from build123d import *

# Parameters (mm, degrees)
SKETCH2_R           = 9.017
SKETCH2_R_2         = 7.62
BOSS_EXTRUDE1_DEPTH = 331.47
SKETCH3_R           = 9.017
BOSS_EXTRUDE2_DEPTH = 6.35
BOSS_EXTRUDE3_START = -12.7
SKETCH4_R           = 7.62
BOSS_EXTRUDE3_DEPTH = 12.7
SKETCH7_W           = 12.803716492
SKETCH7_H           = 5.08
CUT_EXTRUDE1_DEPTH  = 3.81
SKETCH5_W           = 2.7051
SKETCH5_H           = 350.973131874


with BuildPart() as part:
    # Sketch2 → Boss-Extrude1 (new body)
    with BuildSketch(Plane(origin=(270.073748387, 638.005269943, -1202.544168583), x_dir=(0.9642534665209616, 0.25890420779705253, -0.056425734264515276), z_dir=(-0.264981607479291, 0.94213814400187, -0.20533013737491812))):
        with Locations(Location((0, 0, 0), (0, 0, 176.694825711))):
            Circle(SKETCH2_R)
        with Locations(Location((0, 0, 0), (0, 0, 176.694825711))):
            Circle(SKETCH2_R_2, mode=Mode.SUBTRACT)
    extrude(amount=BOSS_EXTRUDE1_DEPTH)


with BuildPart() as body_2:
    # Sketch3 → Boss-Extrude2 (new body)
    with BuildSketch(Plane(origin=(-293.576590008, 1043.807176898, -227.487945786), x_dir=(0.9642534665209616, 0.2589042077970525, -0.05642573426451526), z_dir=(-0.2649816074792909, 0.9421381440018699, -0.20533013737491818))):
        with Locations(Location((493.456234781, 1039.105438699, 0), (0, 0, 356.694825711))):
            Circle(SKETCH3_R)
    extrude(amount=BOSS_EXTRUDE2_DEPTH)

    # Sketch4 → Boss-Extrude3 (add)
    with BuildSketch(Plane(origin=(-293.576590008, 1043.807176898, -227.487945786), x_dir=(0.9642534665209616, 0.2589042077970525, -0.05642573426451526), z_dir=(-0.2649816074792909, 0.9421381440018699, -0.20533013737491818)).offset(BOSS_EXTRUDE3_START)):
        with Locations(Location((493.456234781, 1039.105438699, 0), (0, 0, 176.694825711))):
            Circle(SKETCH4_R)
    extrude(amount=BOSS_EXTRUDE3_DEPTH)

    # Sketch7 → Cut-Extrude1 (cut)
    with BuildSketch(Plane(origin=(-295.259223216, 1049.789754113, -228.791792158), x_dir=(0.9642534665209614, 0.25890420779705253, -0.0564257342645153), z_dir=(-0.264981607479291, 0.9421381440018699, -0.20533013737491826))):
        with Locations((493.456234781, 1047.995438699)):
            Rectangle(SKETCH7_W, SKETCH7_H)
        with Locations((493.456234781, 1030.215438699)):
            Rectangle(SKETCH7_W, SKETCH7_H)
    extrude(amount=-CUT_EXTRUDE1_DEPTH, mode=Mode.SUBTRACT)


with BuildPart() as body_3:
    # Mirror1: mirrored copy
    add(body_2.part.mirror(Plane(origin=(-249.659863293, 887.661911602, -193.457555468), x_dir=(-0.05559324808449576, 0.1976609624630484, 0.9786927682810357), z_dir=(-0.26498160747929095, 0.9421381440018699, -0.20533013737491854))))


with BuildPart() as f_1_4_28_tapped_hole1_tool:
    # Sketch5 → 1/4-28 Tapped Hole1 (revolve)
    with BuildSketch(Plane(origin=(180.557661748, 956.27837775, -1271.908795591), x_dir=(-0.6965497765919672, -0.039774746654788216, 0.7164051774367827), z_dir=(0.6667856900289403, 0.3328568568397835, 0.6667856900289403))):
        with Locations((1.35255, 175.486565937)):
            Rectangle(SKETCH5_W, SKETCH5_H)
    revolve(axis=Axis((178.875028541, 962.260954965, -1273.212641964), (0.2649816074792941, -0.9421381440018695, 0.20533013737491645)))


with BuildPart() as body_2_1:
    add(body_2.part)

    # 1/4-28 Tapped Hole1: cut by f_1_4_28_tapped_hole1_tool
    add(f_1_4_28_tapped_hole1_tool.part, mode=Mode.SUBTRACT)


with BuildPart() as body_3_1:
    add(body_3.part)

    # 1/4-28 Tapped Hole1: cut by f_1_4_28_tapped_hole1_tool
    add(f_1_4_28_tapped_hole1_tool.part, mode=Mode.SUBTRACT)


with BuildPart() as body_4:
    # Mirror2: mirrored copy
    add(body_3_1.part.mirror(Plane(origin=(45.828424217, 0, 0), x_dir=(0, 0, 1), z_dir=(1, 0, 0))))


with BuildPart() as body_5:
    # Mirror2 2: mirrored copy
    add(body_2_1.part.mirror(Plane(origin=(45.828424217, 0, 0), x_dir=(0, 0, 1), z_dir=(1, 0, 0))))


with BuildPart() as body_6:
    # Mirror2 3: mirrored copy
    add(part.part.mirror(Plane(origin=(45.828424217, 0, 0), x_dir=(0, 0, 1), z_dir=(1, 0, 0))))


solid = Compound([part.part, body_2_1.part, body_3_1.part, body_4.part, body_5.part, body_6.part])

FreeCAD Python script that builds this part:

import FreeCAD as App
import Part
import Sketcher
from FreeCAD import Vector
Q = App.Units.Quantity


def add_polygon(sketch, points):
    """Adds a closed chain of lines whose ends are joined by coincident constraints."""
    first, n = sketch.GeometryCount, len(points)
    for a, b in zip(points, points[1:] + points[:1]):
        sketch.addGeometry(Part.LineSegment(App.Vector(*a, 0), App.Vector(*b, 0)), False)
    for i in range(n):
        sketch.addConstraint(Sketcher.Constraint("Coincident", first + i, 2, first + (i + 1) % n, 1))

doc = App.newDocument("Part")
body = doc.addObject("PartDesign::Body", "Body")

# Sketch on an angled plane
sketch1 = doc.addObject("Sketcher::SketchObject", "Sketch")
body.addObject(sketch1)
sketch1.Placement = App.Placement(Vector(270.073748, 638.00527, -1202.544169), App.Rotation(Vector(0.964253467, 0.258904208, -0.056425734), Vector(0, -0.212942078, -0.977064825), Vector(-0.264981607, 0.942138144, -0.205330137), "ZXY"))
sketch1.addGeometry([
    Part.Circle(Vector(0, 0, 0), Vector(0, 0, 1), 9),
    Part.Circle(Vector(0, 0, 0), Vector(0, 0, 1), 8),
], False)
sketch1.addConstraint([
    Sketcher.Constraint("Coincident", 0, 3, -1, 1),
    Sketcher.Constraint("Coincident", 1, 3, -1, 1),
    Sketcher.Constraint("Diameter", 1, Q("0.6 in")),
    Sketcher.Constraint("Diameter", 0, Q("0.71 in")),
])
pad1 = doc.addObject("PartDesign::Pad", "Pad")
body.addObject(pad1)
pad1.Profile = sketch1
pad1.Length = Q("13.05 in")
body2 = doc.addObject("PartDesign::Body", "Body001")

# Sketch on an angled plane
sketch2 = doc.addObject("Sketcher::SketchObject", "Sketch001")
body2.addObject(sketch2)
sketch2.Placement = App.Placement(Vector(-293.57659, 1043.807177, -227.487946), App.Rotation(Vector(0.964253467, 0.258904208, -0.056425734), Vector(0, -0.212942078, -0.977064825), Vector(-0.264981607, 0.942138144, -0.205330137), "ZXY"))
sketch2.addGeometry(Part.Circle(Vector(493, 1039, 0), Vector(0, 0, 1), 9), False)
sketch2.addConstraint([
    Sketcher.Constraint("Diameter", 0, Q("0.71 in")),
    Sketcher.Constraint("DistanceY", -1, 1, 0, 3, 1039.105439),
    Sketcher.Constraint("DistanceX", -1, 1, 0, 3, 493.456235),
])
pad2 = doc.addObject("PartDesign::Pad", "Pad001")
body2.addObject(pad2)
pad2.Profile = sketch2
pad2.Length = Q("0.25 in")

# Sketch on an angled plane
sketch3 = doc.addObject("Sketcher::SketchObject", "Sketch002")
body2.addObject(sketch3)
sketch3.Placement = App.Placement(Vector(-290.211324, 1031.842022, -224.880253), App.Rotation(Vector(0.964253467, 0.258904208, -0.056425734), Vector(0, -0.212942078, -0.977064825), Vector(-0.264981607, 0.942138144, -0.205330137), "ZXY"))
sketch3.addGeometry(Part.Circle(Vector(493, 1039, 0), Vector(0, 0, 1), 8), False)
sketch3.addConstraint([
    Sketcher.Constraint("Diameter", 0, Q("0.6 in")),
    Sketcher.Constraint("DistanceY", -1, 1, 0, 3, 1039.105439),
    Sketcher.Constraint("DistanceX", -1, 1, 0, 3, 493.456235),
])
pad3 = doc.addObject("PartDesign::Pad", "Pad002")
body2.addObject(pad3)
pad3.Profile = sketch3
pad3.Length = Q("0.5 in")

# Sketch on an angled plane
sketch4 = doc.addObject("Sketcher::SketchObject", "Sketch003")
body2.addObject(sketch4)
sketch4.Placement = App.Placement(Vector(-295.259223, 1049.789754, -228.791792), App.Rotation(Vector(0.964253467, 0.258904208, -0.056425734), Vector(0, -0.212942078, -0.977064825), Vector(-0.264981607, 0.942138144, -0.205330137), "ZXY"))
add_polygon(sketch4, [(487, 1051), (487, 1045), (500, 1045), (500, 1051)])  # lines 0-3
add_polygon(sketch4, [(487, 1033), (487, 1028), (500, 1028), (500, 1033)])  # lines 4-7
sketch4.addConstraint([
    Sketcher.Constraint("Vertical", 0),
    Sketcher.Constraint("Horizontal", 1),
    Sketcher.Constraint("Vertical", 2),
    Sketcher.Constraint("Horizontal", 3),
    Sketcher.Constraint("Vertical", 4),
    Sketcher.Constraint("Horizontal", 5),
    Sketcher.Constraint("Vertical", 6),
    Sketcher.Constraint("Horizontal", 7),
    Sketcher.Constraint("Vertical", 3, 2, 4, 2),
    Sketcher.Constraint("Vertical", 2, 2, 5, 2),
    Sketcher.Constraint("Equal", 2, 4),
    Sketcher.Constraint("DistanceY", 0, 2, 0, 1, Q("0.2 in")),
    Sketcher.Constraint("DistanceY", 4, 2, 0, 2, Q("0.7 in")),
    Sketcher.Constraint("DistanceX", 1, 1, 1, 2, 12.803717),
    Sketcher.Constraint("DistanceY", -1, 1, 0, 2, 1045.455439),
    Sketcher.Constraint("DistanceX", -1, 1, 0, 2, 487.054377),
])
pocket1 = doc.addObject("PartDesign::Pocket", "Pocket")
body2.addObject(pocket1)
pocket1.Profile = sketch4
pocket1.Length = Q("0.15 in")
body3 = doc.addObject("PartDesign::Body", "Body002")
doc.recompute()

mirroring = doc.addObject("Part::Mirroring", "Mirroring")
mirroring.Source = body2
mirroring.Base = Vector(-249.659863, 887.661912, -193.457555)
mirroring.Normal = Vector(-0.264981607, 0.942138144, -0.205330137)
body3.BaseFeature = mirroring
doc.recompute()
body4 = doc.addObject("PartDesign::Body", "Body003")

# Sketch on an angled plane
sketch5 = doc.addObject("Sketcher::SketchObject", "Sketch004")
body4.addObject(sketch5)
sketch5.Placement = App.Placement(Vector(180.557662, 956.278378, -1271.908796), App.Rotation(Vector(-0.696549777, -0.039774747, 0.716405177), Vector(0.264981608, -0.942138144, 0.205330137), Vector(0.66678569, 0.332856857, 0.66678569), "ZXY"))
add_polygon(sketch5, [(0, 351), (0, 0), (2.7, 0), (2.7, 351)])  # lines 0-3
sketch5.addConstraint([
    Sketcher.Constraint("Vertical", 0),
    Sketcher.Constraint("Horizontal", 1),
    Sketcher.Constraint("Vertical", 2),
    Sketcher.Constraint("Horizontal", 3),
    Sketcher.Constraint("Coincident", 0, 2, -1, 1),
    Sketcher.Constraint("DistanceX", 1, 1, 1, 2, Q("0.1065 in")),
    Sketcher.Constraint("DistanceY", 0, 2, 0, 1, 350.973132),
])
revolution = doc.addObject("PartDesign::Revolution", "Revolution")
body4.addObject(revolution)
revolution.Profile = sketch5
revolution.ReferenceAxis = (sketch5, ["V_Axis"])
revolution.Angle = 360
doc.recompute()

body5 = doc.addObject("PartDesign::Body", "Body004")
body5.BaseFeature = body4
boolean = doc.addObject("PartDesign::Boolean", "Boolean")
body2.addObject(boolean)
boolean.Type = "Cut"
boolean.addObjects([body5])
doc.recompute()

boolean2 = doc.addObject("PartDesign::Boolean", "Boolean001")
body3.addObject(boolean2)
boolean2.Type = "Cut"
boolean2.addObjects([body4])
body6 = doc.addObject("PartDesign::Body", "Body005")
doc.recompute()

mirroring2 = doc.addObject("Part::Mirroring", "Mirroring001")
mirroring2.Source = body3
mirroring2.Base = Vector(45.828424, 0, 0)
mirroring2.Normal = Vector(1, 0, 0)
body6.BaseFeature = mirroring2
doc.recompute()
body7 = doc.addObject("PartDesign::Body", "Body006")
doc.recompute()

mirroring3 = doc.addObject("Part::Mirroring", "Mirroring002")
mirroring3.Source = body2
mirroring3.Base = Vector(45.828424, 0, 0)
mirroring3.Normal = Vector(1, 0, 0)
body7.BaseFeature = mirroring3
doc.recompute()
body8 = doc.addObject("PartDesign::Body", "Body007")
doc.recompute()

mirroring4 = doc.addObject("Part::Mirroring", "Mirroring003")
mirroring4.Source = body
mirroring4.Base = Vector(45.828424, 0, 0)
mirroring4.Normal = Vector(1, 0, 0)
body8.BaseFeature = mirroring4
doc.recompute()
mirroring.Visibility = False
mirroring2.Visibility = False
mirroring3.Visibility = False
mirroring4.Visibility = False

doc.recompute()
